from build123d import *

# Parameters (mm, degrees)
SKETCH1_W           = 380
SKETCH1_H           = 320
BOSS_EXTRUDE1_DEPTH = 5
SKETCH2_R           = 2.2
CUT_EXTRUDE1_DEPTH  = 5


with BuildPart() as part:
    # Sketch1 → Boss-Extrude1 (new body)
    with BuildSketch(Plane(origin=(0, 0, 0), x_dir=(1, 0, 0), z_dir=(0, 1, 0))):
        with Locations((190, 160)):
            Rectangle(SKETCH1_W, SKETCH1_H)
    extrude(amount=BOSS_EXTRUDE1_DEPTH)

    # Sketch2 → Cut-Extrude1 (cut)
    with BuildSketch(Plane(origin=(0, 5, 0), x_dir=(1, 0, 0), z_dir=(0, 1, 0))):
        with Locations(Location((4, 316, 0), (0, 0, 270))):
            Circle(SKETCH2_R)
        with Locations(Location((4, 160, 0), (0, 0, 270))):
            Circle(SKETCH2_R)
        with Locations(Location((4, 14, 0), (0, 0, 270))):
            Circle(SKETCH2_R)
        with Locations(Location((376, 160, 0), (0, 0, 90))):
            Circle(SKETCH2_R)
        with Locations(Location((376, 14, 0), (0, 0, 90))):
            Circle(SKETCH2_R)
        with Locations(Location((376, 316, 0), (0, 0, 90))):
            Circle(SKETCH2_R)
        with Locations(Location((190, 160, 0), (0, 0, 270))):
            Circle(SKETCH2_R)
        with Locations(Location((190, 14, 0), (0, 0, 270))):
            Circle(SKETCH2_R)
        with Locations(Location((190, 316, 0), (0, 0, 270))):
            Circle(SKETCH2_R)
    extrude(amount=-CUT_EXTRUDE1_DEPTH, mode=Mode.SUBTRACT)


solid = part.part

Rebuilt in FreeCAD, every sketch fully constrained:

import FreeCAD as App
import Part
import Sketcher
from FreeCAD import Vector


def add_polygon(sketch, points):
    """Adds a closed chain of lines whose ends are joined by coincident constraints."""
    first, n = sketch.GeometryCount, len(points)
    for a, b in zip(points, points[1:] + points[:1]):
        sketch.addGeometry(Part.LineSegment(App.Vector(*a, 0), App.Vector(*b, 0)), False)
    for i in range(n):
        sketch.addConstraint(Sketcher.Constraint("Coincident", first + i, 2, first + (i + 1) % n, 1))

doc = App.newDocument("Part")
body = doc.addObject("PartDesign::Body", "Body")

sketch1 = body.newObject("Sketcher::SketchObject", "Sketch")
sketch1.AttachmentSupport = (doc.getObject("XZ_Plane"), [""])
sketch1.MapMode = "FlatFace"
add_polygon(sketch1, [(0, -320), (0, 0), (380, 0), (380, -320)])
sketch1.addConstraint([
    Sketcher.Constraint("Vertical", 0),
    Sketcher.Constraint("Horizontal", 1),
    Sketcher.Constraint("Vertical", 2),
    Sketcher.Constraint("Horizontal", 3),
    Sketcher.Constraint("Coincident", 0, 2, -1, 1),
    Sketcher.Constraint("DistanceX", 1, 1, 1, 2, 380.0),
    Sketcher.Constraint("DistanceY", 0, 1, 0, 2, 320.0),
])
pad1 = body.newObject("PartDesign::Pad", "Pad")
pad1.Profile = sketch1
pad1.Length = 5
pad1.Reversed = True

sketch2 = body.newObject("Sketcher::SketchObject", "Sketch001")
sketch2.AttachmentSupport = (doc.getObject("XZ_Plane"), [""])
sketch2.MapMode = "FlatFace"
sketch2.AttachmentOffset = App.Placement(Vector(0, 0, -5), App.Rotation())
sketch2.addGeometry([
    Part.Circle(Vector(4, -316, 0), Vector(0, 0, 1), 2.2),
    Part.Circle(Vector(4, -160, 0), Vector(0, 0, 1), 2.2),
    Part.Circle(Vector(4, -14, 0), Vector(0, 0, 1), 2.2),
    Part.Circle(Vector(376, -160, 0), Vector(0, 0, 1), 2.2),
    Part.Circle(Vector(376, -14, 0), Vector(0, 0, 1), 2.2),
    Part.Circle(Vector(376, -316, 0), Vector(0, 0, 1), 2.2),
    Part.Circle(Vector(190, -160, 0), Vector(0, 0, 1), 2.2),
    Part.Circle(Vector(190, -14, 0), Vector(0, 0, 1), 2.2),
    Part.Circle(Vector(190, -316, 0), Vector(0, 0, 1), 2.2),
], False)
sketch2.addConstraint([
    Sketcher.Constraint("Equal", 0, 1),
    Sketcher.Constraint("Equal", 1, 2),
    Sketcher.Constraint("Equal", 2, 3),
    Sketcher.Constraint("Equal", 3, 4),
    Sketcher.Constraint("Equal", 4, 5),
    Sketcher.Constraint("Equal", 5, 6),
    Sketcher.Constraint("Equal", 6, 7),
    Sketcher.Constraint("Equal", 7, 8),
    Sketcher.Constraint("Horizontal", 1, 3, 3, 3),
    Sketcher.Constraint("Horizontal", 2, 3, 4, 3),
    Sketcher.Constraint("Horizontal", 0, 3, 5, 3),
    Sketcher.Constraint("Horizontal", 3, 3, 6, 3),
    Sketcher.Constraint("Horizontal", 4, 3, 7, 3),
    Sketcher.Constraint("Horizontal", 5, 3, 8, 3),
    Sketcher.Constraint("Vertical", 0, 3, 1, 3),
    Sketcher.Constraint("Vertical", 1, 3, 2, 3),
    Sketcher.Constraint("Vertical", 3, 3, 4, 3),
    Sketcher.Constraint("Vertical", 4, 3, 5, 3),
    Sketcher.Constraint("Vertical", 6, 3, 7, 3),
    Sketcher.Constraint("Vertical", 7, 3, 8, 3),
    Sketcher.Constraint("Diameter", 0, 4.4),
    Sketcher.Constraint("DistanceX", -1, 1, 0, 3, 4.0),
    Sketcher.Constraint("DistanceY", 0, 3, -1, 1, 316.0),
    Sketcher.Constraint("DistanceY", 1, 3, -1, 1, 160.0),
    Sketcher.Constraint("DistanceY", 2, 3, -1, 1, 14.0),
    Sketcher.Constraint("DistanceX", -1, 1, 3, 3, 376.0),
    Sketcher.Constraint("DistanceX", -1, 1, 6, 3, 190.0),
])
pocket1 = body.newObject("PartDesign::Pocket", "Pocket")
pocket1.Profile = sketch2
pocket1.Length = 5
pocket1.Reversed = True

doc.recompute()
